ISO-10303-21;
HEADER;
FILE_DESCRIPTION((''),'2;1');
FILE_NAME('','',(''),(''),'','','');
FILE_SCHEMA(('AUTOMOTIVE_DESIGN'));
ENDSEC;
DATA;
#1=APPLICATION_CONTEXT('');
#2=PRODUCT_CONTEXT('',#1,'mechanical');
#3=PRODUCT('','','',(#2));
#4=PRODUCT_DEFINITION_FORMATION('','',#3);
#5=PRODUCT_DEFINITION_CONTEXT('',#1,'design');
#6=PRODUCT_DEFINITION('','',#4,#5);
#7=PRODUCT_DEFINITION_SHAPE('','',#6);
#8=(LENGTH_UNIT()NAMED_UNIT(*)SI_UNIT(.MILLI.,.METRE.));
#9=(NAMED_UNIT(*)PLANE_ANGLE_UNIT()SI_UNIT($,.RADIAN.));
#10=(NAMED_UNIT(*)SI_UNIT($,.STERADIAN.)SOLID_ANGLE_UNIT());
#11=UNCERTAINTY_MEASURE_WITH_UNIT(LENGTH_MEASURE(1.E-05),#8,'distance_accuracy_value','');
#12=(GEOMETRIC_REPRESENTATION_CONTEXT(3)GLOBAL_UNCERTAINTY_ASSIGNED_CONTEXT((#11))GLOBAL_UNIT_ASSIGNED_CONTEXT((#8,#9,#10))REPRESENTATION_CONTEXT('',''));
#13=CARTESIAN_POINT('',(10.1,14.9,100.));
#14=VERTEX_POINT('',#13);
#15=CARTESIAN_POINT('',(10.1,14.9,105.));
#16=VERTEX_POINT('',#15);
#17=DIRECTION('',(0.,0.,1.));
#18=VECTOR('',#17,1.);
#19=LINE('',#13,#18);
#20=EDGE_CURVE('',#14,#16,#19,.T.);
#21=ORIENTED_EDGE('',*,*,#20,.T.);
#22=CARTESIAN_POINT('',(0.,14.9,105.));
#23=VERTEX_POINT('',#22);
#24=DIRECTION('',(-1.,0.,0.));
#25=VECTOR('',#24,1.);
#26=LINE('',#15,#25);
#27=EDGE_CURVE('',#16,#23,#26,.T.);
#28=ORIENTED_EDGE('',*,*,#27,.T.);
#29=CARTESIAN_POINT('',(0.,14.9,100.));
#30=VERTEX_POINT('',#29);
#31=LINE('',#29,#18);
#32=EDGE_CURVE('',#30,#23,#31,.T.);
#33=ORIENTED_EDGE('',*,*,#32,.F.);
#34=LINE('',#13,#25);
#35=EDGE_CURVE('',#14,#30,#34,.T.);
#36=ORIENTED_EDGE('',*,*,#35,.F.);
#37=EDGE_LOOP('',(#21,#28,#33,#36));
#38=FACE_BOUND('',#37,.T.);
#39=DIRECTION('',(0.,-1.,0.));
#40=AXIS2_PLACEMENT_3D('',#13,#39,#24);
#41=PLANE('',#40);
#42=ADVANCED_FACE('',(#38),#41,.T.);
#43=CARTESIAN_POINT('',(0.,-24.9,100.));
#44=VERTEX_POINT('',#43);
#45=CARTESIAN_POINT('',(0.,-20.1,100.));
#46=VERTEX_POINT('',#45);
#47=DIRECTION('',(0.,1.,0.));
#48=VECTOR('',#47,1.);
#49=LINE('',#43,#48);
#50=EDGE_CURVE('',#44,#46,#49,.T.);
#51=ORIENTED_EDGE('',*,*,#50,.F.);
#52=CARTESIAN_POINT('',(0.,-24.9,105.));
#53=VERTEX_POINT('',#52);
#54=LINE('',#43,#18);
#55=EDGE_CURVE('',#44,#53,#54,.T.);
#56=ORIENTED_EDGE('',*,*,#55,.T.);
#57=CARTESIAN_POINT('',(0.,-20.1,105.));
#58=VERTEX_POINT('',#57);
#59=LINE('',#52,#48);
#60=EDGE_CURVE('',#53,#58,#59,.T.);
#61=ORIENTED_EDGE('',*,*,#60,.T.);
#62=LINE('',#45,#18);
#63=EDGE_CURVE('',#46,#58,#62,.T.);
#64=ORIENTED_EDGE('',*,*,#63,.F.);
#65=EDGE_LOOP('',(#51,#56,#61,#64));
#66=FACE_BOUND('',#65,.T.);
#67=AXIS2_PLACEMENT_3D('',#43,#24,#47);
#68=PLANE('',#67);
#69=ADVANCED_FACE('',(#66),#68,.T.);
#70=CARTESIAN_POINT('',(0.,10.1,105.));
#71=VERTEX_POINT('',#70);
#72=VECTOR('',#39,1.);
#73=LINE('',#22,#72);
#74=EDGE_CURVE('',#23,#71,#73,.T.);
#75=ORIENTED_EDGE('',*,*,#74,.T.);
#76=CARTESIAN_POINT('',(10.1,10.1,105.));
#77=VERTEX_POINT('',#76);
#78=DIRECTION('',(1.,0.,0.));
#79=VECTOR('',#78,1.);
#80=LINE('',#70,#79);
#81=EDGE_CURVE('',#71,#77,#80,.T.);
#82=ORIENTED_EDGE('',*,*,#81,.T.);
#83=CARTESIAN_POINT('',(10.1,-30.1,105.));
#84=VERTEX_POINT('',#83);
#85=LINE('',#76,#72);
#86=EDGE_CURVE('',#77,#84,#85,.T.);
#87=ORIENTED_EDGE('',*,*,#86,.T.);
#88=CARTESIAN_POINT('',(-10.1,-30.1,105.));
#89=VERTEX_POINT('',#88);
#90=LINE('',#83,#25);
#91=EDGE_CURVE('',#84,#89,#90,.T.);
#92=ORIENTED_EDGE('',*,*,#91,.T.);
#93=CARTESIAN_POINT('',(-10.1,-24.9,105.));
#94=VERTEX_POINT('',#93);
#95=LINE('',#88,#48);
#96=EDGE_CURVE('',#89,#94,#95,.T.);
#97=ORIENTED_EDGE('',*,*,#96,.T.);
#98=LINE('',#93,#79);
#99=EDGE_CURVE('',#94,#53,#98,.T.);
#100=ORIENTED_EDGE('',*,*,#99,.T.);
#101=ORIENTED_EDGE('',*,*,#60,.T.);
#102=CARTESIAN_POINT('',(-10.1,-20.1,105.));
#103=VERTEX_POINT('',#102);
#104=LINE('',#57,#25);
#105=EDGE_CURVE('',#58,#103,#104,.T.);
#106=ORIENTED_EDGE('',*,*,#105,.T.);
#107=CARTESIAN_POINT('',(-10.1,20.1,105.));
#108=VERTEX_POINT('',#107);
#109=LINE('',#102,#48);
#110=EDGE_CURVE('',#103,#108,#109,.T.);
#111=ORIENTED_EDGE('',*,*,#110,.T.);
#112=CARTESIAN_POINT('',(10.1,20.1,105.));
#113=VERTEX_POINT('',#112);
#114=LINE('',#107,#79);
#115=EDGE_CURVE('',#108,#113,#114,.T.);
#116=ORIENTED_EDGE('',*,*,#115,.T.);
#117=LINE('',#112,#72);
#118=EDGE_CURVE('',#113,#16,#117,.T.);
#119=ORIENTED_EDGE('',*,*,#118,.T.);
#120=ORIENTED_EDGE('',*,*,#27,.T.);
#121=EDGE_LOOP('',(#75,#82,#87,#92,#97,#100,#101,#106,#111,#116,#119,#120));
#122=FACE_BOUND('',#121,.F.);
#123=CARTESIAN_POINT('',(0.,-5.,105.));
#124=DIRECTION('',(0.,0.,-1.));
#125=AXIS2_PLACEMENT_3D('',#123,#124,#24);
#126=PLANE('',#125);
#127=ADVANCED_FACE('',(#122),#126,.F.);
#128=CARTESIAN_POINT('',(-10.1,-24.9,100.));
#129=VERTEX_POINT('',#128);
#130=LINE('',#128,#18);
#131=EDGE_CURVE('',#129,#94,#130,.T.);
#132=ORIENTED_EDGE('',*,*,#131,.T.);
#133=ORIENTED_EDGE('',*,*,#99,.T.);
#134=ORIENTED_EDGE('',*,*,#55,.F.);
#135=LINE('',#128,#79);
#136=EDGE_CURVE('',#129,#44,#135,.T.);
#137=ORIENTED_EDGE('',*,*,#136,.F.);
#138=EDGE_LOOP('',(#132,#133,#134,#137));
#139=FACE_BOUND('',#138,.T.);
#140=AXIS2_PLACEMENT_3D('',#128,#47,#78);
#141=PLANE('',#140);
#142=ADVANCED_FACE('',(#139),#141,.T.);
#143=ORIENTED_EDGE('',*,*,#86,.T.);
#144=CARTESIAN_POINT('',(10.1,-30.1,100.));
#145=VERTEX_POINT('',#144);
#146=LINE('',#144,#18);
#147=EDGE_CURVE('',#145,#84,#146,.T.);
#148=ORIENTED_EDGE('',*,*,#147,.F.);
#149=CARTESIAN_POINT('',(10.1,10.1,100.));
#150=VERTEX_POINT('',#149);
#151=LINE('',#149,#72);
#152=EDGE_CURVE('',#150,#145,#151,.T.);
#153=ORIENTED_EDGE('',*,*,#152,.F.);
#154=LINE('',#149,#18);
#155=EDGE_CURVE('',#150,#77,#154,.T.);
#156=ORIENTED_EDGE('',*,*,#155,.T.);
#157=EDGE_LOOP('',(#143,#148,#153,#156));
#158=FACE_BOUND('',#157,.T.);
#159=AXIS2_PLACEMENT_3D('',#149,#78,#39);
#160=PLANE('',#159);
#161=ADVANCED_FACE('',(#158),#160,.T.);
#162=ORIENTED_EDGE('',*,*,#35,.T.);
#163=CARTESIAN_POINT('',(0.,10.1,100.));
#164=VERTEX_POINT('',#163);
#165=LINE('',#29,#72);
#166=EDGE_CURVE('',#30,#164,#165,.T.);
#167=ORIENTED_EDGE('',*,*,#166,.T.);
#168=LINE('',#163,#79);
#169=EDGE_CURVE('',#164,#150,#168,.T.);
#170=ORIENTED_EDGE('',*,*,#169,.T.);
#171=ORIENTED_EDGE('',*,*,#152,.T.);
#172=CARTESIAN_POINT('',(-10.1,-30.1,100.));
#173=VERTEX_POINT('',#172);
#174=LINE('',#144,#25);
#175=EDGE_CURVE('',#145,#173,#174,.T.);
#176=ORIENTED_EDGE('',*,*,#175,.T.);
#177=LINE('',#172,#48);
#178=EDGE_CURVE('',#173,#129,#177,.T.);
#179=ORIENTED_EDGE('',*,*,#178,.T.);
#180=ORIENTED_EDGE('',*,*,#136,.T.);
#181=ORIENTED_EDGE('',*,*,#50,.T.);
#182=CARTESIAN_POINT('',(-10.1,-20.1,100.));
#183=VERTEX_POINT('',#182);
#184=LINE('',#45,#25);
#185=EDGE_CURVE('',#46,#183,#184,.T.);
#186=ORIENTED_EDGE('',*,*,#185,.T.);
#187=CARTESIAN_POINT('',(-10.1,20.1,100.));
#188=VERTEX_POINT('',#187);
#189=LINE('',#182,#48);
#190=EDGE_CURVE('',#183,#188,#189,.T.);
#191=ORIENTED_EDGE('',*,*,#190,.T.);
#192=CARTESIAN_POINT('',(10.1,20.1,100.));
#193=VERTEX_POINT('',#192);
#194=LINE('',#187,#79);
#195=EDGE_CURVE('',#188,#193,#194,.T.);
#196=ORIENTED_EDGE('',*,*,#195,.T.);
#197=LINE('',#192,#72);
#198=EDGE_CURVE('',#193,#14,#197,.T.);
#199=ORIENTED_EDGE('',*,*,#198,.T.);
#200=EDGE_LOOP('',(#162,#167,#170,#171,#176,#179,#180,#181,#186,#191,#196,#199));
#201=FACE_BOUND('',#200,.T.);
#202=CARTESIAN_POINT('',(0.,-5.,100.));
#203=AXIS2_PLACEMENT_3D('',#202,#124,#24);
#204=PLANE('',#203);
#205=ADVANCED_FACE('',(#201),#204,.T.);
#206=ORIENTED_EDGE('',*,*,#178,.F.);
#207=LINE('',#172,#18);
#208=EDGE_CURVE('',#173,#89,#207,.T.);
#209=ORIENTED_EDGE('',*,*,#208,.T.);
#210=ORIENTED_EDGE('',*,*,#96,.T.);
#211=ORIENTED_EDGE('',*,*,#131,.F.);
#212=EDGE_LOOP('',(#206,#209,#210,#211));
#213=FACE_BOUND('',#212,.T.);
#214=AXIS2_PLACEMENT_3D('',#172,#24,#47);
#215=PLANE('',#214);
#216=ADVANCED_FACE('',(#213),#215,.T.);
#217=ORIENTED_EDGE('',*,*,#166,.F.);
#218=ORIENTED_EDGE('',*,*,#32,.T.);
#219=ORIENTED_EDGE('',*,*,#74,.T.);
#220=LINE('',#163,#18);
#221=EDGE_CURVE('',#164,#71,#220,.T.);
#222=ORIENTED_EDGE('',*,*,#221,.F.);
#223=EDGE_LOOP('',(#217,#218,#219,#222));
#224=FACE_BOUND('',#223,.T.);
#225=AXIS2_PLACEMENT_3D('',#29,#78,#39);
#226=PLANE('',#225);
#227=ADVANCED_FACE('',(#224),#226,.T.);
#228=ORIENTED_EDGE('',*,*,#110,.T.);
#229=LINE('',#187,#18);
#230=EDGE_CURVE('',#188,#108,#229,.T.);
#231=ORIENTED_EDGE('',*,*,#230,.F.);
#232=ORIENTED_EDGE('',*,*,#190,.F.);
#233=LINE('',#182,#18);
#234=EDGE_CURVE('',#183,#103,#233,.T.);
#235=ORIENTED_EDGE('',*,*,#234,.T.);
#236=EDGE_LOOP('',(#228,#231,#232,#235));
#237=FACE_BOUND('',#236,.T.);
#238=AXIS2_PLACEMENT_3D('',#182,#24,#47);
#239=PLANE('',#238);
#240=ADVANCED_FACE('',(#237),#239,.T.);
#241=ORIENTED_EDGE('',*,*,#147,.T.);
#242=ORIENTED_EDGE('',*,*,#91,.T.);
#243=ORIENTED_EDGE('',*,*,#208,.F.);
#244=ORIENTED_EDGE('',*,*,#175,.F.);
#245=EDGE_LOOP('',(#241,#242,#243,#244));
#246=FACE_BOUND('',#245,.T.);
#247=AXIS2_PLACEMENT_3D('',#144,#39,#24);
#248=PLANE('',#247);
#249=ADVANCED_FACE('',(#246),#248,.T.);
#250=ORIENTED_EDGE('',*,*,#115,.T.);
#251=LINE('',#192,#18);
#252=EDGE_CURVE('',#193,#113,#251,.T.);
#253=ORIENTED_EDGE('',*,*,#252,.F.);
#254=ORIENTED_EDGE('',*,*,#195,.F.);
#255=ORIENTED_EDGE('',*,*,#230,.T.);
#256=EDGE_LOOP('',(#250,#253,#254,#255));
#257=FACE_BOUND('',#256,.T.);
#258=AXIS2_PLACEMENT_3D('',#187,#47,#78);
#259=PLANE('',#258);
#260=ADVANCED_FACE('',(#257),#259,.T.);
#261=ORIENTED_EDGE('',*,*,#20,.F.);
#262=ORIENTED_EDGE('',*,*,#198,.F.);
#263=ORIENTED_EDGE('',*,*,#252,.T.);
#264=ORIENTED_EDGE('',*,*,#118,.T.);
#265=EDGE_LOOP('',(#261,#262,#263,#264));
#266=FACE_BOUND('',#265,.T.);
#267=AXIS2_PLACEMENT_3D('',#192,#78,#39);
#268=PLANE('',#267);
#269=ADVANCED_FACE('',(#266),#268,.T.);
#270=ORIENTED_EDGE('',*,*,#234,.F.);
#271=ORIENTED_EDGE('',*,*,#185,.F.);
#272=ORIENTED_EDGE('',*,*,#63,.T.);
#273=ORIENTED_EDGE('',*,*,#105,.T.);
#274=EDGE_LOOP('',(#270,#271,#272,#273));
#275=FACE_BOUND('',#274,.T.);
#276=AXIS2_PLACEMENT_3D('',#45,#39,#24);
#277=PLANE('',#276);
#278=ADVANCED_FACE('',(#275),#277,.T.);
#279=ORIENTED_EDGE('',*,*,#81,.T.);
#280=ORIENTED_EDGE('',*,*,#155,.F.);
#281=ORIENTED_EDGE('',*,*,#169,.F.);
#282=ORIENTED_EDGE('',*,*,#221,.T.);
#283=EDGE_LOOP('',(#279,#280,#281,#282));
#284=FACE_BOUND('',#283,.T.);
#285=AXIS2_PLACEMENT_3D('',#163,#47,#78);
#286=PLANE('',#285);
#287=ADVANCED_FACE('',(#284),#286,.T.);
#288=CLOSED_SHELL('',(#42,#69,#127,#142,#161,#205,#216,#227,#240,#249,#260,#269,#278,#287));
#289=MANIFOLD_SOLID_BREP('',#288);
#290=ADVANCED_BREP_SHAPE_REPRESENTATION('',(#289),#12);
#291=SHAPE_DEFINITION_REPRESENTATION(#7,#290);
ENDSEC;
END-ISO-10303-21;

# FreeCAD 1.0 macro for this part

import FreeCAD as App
import Part
import Sketcher
Q = App.Units.Quantity


def add_polygon(sketch, points):
    """Adds a closed chain of lines whose ends are joined by coincident constraints."""
    first, n = sketch.GeometryCount, len(points)
    for a, b in zip(points, points[1:] + points[:1]):
        sketch.addGeometry(Part.LineSegment(App.Vector(*a, 0), App.Vector(*b, 0)), False)
    for i in range(n):
        sketch.addConstraint(Sketcher.Constraint("Coincident", first + i, 2, first + (i + 1) % n, 1))

doc = App.newDocument("Part")
body = doc.addObject("PartDesign::Body", "Body")

sketch1 = body.newObject("Sketcher::SketchObject", "Sketch")
sketch1.AttachmentSupport = (doc.getObject("XY_Plane"), [""])
sketch1.MapMode = "FlatFace"
sketch1.AttachmentOffset = App.Placement(App.Vector(0, 0, 100), App.Rotation())
add_polygon(sketch1, [(10.1, 20.1), (-10.1, 20.1), (-10.1, -20.1), (0, -20.1), (0, -24.9), (-10.1, -24.9), (-10.1, -30.1), (10.1, -30.1), (10.1, 10.1), (0, 10.1), (0, 14.9), (10.1, 14.9)])
sketch1.addConstraint(Sketcher.Constraint("Horizontal", 0))
sketch1.addConstraint(Sketcher.Constraint("Vertical", 1))
sketch1.addConstraint(Sketcher.Constraint("Horizontal", 2))
sketch1.addConstraint(Sketcher.Constraint("Vertical", 3))
sketch1.addConstraint(Sketcher.Constraint("Horizontal", 4))
sketch1.addConstraint(Sketcher.Constraint("Vertical", 5))
sketch1.addConstraint(Sketcher.Constraint("Horizontal", 6))
sketch1.addConstraint(Sketcher.Constraint("Vertical", 7))
sketch1.addConstraint(Sketcher.Constraint("Horizontal", 8))
sketch1.addConstraint(Sketcher.Constraint("Vertical", 9))
sketch1.addConstraint(Sketcher.Constraint("Horizontal", 10))
sketch1.addConstraint(Sketcher.Constraint("Vertical", 11))
sketch1.addConstraint(Sketcher.Constraint("Symmetric", 1, 2, 11, 2, -1, 1))
sketch1.addConstraint(Sketcher.Constraint("PointOnObject", 2, 2, -2))
sketch1.addConstraint(Sketcher.Constraint("PointOnObject", 8, 2, -2))
sketch1.addConstraint(Sketcher.Constraint("Vertical", 1, 2, 4, 2))
sketch1.addConstraint(Sketcher.Constraint("Vertical", 7, 2, 10, 2))
sketch1.addConstraint(Sketcher.Constraint("Equal", 1, 7))
sketch1.addConstraint(Sketcher.Constraint("Equal", 3, 9))
sketch1.addConstraint(Sketcher.Constraint("DistanceX", 0, 2, 0, 1, Q("20.2 mm")))
sketch1.addConstraint(Sketcher.Constraint("DistanceY", 1, 2, 1, 1, Q("40.2 mm")))
sketch1.addConstraint(Sketcher.Constraint("DistanceY", 3, 2, 3, 1, Q("4.8 mm")))
sketch1.addConstraint(Sketcher.Constraint("DistanceY", 5, 2, 5, 1, Q("5.2 mm")))
pad1 = body.newObject("PartDesign::Pad", "Pad")
pad1.Profile = sketch1
pad1.Length = 5

doc.recompute()
